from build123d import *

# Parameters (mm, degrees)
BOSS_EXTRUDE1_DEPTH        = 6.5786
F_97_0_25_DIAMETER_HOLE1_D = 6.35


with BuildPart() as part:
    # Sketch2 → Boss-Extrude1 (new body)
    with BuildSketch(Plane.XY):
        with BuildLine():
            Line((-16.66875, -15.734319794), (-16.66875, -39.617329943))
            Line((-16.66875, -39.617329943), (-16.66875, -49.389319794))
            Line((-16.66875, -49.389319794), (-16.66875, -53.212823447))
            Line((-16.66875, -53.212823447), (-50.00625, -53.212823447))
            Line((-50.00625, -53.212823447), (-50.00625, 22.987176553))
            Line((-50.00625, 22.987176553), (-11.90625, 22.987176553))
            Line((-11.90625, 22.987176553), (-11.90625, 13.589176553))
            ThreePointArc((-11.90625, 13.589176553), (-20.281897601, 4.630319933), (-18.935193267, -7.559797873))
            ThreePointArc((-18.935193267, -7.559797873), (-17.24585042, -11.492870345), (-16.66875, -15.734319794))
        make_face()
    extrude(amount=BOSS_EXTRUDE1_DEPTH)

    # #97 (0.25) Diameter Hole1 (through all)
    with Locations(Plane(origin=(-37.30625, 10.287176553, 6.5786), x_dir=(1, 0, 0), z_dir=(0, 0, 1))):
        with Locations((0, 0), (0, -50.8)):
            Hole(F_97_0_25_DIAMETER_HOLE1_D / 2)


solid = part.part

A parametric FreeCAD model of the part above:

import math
import FreeCAD as App
import Part
import Sketcher
Q = App.Units.Quantity

doc = App.newDocument("Part")
body = doc.addObject("PartDesign::Body", "Body")

sketch1 = doc.addObject("Sketcher::SketchObject", "Sketch")
body.addObject(sketch1)
sketch1.AttachmentSupport = (doc.XY_Plane, [""])
sketch1.MapMode = "FlatFace"
sketch1.addGeometry([
    Part.LineSegment(App.Vector(-17, -53, 0), App.Vector(-17, -16, 0)),
    Part.ArcOfCircle(Part.Circle(App.Vector(-33, -16, 0), App.Vector(0, 0, 1), 16), math.radians(0), math.radians(31)),
    Part.ArcOfCircle(Part.Circle(App.Vector(-6, 0, 0), App.Vector(0, 0, 1), 15), math.radians(112), math.radians(211)),
    Part.LineSegment(App.Vector(-12, 14, 0), App.Vector(-12, 23, 0)),
    Part.LineSegment(App.Vector(-12, 23, 0), App.Vector(-50, 23, 0)),
    Part.LineSegment(App.Vector(-50, 23, 0), App.Vector(-50, -53, 0)),
    Part.LineSegment(App.Vector(-50, -53, 0), App.Vector(-17, -53, 0)),
], False)
sketch1.addConstraint([
    Sketcher.Constraint("Tangent", 0, 2, 1, 1),
    Sketcher.Constraint("Tangent", 1, 2, 2, 2),
    Sketcher.Constraint("Coincident", 2, 1, 3, 1),
    Sketcher.Constraint("Coincident", 3, 2, 4, 1),
    Sketcher.Constraint("Coincident", 4, 2, 5, 1),
    Sketcher.Constraint("Coincident", 5, 2, 6, 1),
    Sketcher.Constraint("Coincident", 6, 2, 0, 1),
    Sketcher.Constraint("Vertical", 0),
    Sketcher.Constraint("Vertical", 3),
    Sketcher.Constraint("Horizontal", 4),
    Sketcher.Constraint("Vertical", 5),
    Sketcher.Constraint("Horizontal", 6),
    Sketcher.Constraint("PointOnObject", 2, 3, -1),
    Sketcher.Constraint("DistanceY", 5, 2, 5, 1, Q("3 in")),
    Sketcher.Constraint("DistanceX", 4, 2, 4, 1, Q("1.5 in")),
    Sketcher.Constraint("Radius", 1, Q("0.625 in")),
    Sketcher.Constraint("Radius", 2, Q("0.578 in")),
    Sketcher.Constraint("DistanceY", 3, 1, 3, 2, Q("0.37 in")),
    Sketcher.Constraint("DistanceX", 6, 1, 6, 2, Q("1.3125 in")),
    Sketcher.Constraint("DistanceX", 2, 3, -1, 1, Q("0.25 in")),
    Sketcher.Constraint("DistanceX", 1, 3, -1, 1, Q("1.28125 in")),
])
pad1 = doc.addObject("PartDesign::Pad", "Pad")
body.addObject(pad1)
pad1.Profile = sketch1
pad1.Length = Q("0.259 in")

sketch2 = doc.addObject("Sketcher::SketchObject", "Sketch001")
body.addObject(sketch2)
sketch2.AttachmentSupport = (doc.XY_Plane, [""])
sketch2.MapMode = "FlatFace"
sketch2.AttachmentOffset = App.Placement(App.Vector(0, 0, 0.259 * 25.4), App.Rotation())
sketch2.addGeometry([
    Part.Circle(App.Vector(-37.3, 10.3, 0), App.Vector(0, 0, 1), 3.2),
    Part.Circle(App.Vector(-37.3, -40.5, 0), App.Vector(0, 0, 1), 3.2),
], False)
sketch2.addConstraint([
    Sketcher.Constraint("Equal", 0, 1),
    Sketcher.Constraint("Vertical", 0, 3, 1, 3),
    Sketcher.Constraint("Diameter", 0, Q("0.25 in")),
    Sketcher.Constraint("DistanceY", 1, 3, 0, 3, Q("2 in")),
    Sketcher.Constraint("DistanceX", 0, 3, -1, 1, Q("1.46875 in")),
    Sketcher.Constraint("DistanceY", -1, 1, 0, 3, Q("10.287177 mm")),
])
doc.recompute()
hole = doc.addObject("PartDesign::Hole", "Hole")
body.addObject(hole)
hole.Profile = sketch2
hole.ThreadType = "None"
hole.Diameter = Q("0.25 in")
hole.DepthType = "ThroughAll"

doc.recompute()
